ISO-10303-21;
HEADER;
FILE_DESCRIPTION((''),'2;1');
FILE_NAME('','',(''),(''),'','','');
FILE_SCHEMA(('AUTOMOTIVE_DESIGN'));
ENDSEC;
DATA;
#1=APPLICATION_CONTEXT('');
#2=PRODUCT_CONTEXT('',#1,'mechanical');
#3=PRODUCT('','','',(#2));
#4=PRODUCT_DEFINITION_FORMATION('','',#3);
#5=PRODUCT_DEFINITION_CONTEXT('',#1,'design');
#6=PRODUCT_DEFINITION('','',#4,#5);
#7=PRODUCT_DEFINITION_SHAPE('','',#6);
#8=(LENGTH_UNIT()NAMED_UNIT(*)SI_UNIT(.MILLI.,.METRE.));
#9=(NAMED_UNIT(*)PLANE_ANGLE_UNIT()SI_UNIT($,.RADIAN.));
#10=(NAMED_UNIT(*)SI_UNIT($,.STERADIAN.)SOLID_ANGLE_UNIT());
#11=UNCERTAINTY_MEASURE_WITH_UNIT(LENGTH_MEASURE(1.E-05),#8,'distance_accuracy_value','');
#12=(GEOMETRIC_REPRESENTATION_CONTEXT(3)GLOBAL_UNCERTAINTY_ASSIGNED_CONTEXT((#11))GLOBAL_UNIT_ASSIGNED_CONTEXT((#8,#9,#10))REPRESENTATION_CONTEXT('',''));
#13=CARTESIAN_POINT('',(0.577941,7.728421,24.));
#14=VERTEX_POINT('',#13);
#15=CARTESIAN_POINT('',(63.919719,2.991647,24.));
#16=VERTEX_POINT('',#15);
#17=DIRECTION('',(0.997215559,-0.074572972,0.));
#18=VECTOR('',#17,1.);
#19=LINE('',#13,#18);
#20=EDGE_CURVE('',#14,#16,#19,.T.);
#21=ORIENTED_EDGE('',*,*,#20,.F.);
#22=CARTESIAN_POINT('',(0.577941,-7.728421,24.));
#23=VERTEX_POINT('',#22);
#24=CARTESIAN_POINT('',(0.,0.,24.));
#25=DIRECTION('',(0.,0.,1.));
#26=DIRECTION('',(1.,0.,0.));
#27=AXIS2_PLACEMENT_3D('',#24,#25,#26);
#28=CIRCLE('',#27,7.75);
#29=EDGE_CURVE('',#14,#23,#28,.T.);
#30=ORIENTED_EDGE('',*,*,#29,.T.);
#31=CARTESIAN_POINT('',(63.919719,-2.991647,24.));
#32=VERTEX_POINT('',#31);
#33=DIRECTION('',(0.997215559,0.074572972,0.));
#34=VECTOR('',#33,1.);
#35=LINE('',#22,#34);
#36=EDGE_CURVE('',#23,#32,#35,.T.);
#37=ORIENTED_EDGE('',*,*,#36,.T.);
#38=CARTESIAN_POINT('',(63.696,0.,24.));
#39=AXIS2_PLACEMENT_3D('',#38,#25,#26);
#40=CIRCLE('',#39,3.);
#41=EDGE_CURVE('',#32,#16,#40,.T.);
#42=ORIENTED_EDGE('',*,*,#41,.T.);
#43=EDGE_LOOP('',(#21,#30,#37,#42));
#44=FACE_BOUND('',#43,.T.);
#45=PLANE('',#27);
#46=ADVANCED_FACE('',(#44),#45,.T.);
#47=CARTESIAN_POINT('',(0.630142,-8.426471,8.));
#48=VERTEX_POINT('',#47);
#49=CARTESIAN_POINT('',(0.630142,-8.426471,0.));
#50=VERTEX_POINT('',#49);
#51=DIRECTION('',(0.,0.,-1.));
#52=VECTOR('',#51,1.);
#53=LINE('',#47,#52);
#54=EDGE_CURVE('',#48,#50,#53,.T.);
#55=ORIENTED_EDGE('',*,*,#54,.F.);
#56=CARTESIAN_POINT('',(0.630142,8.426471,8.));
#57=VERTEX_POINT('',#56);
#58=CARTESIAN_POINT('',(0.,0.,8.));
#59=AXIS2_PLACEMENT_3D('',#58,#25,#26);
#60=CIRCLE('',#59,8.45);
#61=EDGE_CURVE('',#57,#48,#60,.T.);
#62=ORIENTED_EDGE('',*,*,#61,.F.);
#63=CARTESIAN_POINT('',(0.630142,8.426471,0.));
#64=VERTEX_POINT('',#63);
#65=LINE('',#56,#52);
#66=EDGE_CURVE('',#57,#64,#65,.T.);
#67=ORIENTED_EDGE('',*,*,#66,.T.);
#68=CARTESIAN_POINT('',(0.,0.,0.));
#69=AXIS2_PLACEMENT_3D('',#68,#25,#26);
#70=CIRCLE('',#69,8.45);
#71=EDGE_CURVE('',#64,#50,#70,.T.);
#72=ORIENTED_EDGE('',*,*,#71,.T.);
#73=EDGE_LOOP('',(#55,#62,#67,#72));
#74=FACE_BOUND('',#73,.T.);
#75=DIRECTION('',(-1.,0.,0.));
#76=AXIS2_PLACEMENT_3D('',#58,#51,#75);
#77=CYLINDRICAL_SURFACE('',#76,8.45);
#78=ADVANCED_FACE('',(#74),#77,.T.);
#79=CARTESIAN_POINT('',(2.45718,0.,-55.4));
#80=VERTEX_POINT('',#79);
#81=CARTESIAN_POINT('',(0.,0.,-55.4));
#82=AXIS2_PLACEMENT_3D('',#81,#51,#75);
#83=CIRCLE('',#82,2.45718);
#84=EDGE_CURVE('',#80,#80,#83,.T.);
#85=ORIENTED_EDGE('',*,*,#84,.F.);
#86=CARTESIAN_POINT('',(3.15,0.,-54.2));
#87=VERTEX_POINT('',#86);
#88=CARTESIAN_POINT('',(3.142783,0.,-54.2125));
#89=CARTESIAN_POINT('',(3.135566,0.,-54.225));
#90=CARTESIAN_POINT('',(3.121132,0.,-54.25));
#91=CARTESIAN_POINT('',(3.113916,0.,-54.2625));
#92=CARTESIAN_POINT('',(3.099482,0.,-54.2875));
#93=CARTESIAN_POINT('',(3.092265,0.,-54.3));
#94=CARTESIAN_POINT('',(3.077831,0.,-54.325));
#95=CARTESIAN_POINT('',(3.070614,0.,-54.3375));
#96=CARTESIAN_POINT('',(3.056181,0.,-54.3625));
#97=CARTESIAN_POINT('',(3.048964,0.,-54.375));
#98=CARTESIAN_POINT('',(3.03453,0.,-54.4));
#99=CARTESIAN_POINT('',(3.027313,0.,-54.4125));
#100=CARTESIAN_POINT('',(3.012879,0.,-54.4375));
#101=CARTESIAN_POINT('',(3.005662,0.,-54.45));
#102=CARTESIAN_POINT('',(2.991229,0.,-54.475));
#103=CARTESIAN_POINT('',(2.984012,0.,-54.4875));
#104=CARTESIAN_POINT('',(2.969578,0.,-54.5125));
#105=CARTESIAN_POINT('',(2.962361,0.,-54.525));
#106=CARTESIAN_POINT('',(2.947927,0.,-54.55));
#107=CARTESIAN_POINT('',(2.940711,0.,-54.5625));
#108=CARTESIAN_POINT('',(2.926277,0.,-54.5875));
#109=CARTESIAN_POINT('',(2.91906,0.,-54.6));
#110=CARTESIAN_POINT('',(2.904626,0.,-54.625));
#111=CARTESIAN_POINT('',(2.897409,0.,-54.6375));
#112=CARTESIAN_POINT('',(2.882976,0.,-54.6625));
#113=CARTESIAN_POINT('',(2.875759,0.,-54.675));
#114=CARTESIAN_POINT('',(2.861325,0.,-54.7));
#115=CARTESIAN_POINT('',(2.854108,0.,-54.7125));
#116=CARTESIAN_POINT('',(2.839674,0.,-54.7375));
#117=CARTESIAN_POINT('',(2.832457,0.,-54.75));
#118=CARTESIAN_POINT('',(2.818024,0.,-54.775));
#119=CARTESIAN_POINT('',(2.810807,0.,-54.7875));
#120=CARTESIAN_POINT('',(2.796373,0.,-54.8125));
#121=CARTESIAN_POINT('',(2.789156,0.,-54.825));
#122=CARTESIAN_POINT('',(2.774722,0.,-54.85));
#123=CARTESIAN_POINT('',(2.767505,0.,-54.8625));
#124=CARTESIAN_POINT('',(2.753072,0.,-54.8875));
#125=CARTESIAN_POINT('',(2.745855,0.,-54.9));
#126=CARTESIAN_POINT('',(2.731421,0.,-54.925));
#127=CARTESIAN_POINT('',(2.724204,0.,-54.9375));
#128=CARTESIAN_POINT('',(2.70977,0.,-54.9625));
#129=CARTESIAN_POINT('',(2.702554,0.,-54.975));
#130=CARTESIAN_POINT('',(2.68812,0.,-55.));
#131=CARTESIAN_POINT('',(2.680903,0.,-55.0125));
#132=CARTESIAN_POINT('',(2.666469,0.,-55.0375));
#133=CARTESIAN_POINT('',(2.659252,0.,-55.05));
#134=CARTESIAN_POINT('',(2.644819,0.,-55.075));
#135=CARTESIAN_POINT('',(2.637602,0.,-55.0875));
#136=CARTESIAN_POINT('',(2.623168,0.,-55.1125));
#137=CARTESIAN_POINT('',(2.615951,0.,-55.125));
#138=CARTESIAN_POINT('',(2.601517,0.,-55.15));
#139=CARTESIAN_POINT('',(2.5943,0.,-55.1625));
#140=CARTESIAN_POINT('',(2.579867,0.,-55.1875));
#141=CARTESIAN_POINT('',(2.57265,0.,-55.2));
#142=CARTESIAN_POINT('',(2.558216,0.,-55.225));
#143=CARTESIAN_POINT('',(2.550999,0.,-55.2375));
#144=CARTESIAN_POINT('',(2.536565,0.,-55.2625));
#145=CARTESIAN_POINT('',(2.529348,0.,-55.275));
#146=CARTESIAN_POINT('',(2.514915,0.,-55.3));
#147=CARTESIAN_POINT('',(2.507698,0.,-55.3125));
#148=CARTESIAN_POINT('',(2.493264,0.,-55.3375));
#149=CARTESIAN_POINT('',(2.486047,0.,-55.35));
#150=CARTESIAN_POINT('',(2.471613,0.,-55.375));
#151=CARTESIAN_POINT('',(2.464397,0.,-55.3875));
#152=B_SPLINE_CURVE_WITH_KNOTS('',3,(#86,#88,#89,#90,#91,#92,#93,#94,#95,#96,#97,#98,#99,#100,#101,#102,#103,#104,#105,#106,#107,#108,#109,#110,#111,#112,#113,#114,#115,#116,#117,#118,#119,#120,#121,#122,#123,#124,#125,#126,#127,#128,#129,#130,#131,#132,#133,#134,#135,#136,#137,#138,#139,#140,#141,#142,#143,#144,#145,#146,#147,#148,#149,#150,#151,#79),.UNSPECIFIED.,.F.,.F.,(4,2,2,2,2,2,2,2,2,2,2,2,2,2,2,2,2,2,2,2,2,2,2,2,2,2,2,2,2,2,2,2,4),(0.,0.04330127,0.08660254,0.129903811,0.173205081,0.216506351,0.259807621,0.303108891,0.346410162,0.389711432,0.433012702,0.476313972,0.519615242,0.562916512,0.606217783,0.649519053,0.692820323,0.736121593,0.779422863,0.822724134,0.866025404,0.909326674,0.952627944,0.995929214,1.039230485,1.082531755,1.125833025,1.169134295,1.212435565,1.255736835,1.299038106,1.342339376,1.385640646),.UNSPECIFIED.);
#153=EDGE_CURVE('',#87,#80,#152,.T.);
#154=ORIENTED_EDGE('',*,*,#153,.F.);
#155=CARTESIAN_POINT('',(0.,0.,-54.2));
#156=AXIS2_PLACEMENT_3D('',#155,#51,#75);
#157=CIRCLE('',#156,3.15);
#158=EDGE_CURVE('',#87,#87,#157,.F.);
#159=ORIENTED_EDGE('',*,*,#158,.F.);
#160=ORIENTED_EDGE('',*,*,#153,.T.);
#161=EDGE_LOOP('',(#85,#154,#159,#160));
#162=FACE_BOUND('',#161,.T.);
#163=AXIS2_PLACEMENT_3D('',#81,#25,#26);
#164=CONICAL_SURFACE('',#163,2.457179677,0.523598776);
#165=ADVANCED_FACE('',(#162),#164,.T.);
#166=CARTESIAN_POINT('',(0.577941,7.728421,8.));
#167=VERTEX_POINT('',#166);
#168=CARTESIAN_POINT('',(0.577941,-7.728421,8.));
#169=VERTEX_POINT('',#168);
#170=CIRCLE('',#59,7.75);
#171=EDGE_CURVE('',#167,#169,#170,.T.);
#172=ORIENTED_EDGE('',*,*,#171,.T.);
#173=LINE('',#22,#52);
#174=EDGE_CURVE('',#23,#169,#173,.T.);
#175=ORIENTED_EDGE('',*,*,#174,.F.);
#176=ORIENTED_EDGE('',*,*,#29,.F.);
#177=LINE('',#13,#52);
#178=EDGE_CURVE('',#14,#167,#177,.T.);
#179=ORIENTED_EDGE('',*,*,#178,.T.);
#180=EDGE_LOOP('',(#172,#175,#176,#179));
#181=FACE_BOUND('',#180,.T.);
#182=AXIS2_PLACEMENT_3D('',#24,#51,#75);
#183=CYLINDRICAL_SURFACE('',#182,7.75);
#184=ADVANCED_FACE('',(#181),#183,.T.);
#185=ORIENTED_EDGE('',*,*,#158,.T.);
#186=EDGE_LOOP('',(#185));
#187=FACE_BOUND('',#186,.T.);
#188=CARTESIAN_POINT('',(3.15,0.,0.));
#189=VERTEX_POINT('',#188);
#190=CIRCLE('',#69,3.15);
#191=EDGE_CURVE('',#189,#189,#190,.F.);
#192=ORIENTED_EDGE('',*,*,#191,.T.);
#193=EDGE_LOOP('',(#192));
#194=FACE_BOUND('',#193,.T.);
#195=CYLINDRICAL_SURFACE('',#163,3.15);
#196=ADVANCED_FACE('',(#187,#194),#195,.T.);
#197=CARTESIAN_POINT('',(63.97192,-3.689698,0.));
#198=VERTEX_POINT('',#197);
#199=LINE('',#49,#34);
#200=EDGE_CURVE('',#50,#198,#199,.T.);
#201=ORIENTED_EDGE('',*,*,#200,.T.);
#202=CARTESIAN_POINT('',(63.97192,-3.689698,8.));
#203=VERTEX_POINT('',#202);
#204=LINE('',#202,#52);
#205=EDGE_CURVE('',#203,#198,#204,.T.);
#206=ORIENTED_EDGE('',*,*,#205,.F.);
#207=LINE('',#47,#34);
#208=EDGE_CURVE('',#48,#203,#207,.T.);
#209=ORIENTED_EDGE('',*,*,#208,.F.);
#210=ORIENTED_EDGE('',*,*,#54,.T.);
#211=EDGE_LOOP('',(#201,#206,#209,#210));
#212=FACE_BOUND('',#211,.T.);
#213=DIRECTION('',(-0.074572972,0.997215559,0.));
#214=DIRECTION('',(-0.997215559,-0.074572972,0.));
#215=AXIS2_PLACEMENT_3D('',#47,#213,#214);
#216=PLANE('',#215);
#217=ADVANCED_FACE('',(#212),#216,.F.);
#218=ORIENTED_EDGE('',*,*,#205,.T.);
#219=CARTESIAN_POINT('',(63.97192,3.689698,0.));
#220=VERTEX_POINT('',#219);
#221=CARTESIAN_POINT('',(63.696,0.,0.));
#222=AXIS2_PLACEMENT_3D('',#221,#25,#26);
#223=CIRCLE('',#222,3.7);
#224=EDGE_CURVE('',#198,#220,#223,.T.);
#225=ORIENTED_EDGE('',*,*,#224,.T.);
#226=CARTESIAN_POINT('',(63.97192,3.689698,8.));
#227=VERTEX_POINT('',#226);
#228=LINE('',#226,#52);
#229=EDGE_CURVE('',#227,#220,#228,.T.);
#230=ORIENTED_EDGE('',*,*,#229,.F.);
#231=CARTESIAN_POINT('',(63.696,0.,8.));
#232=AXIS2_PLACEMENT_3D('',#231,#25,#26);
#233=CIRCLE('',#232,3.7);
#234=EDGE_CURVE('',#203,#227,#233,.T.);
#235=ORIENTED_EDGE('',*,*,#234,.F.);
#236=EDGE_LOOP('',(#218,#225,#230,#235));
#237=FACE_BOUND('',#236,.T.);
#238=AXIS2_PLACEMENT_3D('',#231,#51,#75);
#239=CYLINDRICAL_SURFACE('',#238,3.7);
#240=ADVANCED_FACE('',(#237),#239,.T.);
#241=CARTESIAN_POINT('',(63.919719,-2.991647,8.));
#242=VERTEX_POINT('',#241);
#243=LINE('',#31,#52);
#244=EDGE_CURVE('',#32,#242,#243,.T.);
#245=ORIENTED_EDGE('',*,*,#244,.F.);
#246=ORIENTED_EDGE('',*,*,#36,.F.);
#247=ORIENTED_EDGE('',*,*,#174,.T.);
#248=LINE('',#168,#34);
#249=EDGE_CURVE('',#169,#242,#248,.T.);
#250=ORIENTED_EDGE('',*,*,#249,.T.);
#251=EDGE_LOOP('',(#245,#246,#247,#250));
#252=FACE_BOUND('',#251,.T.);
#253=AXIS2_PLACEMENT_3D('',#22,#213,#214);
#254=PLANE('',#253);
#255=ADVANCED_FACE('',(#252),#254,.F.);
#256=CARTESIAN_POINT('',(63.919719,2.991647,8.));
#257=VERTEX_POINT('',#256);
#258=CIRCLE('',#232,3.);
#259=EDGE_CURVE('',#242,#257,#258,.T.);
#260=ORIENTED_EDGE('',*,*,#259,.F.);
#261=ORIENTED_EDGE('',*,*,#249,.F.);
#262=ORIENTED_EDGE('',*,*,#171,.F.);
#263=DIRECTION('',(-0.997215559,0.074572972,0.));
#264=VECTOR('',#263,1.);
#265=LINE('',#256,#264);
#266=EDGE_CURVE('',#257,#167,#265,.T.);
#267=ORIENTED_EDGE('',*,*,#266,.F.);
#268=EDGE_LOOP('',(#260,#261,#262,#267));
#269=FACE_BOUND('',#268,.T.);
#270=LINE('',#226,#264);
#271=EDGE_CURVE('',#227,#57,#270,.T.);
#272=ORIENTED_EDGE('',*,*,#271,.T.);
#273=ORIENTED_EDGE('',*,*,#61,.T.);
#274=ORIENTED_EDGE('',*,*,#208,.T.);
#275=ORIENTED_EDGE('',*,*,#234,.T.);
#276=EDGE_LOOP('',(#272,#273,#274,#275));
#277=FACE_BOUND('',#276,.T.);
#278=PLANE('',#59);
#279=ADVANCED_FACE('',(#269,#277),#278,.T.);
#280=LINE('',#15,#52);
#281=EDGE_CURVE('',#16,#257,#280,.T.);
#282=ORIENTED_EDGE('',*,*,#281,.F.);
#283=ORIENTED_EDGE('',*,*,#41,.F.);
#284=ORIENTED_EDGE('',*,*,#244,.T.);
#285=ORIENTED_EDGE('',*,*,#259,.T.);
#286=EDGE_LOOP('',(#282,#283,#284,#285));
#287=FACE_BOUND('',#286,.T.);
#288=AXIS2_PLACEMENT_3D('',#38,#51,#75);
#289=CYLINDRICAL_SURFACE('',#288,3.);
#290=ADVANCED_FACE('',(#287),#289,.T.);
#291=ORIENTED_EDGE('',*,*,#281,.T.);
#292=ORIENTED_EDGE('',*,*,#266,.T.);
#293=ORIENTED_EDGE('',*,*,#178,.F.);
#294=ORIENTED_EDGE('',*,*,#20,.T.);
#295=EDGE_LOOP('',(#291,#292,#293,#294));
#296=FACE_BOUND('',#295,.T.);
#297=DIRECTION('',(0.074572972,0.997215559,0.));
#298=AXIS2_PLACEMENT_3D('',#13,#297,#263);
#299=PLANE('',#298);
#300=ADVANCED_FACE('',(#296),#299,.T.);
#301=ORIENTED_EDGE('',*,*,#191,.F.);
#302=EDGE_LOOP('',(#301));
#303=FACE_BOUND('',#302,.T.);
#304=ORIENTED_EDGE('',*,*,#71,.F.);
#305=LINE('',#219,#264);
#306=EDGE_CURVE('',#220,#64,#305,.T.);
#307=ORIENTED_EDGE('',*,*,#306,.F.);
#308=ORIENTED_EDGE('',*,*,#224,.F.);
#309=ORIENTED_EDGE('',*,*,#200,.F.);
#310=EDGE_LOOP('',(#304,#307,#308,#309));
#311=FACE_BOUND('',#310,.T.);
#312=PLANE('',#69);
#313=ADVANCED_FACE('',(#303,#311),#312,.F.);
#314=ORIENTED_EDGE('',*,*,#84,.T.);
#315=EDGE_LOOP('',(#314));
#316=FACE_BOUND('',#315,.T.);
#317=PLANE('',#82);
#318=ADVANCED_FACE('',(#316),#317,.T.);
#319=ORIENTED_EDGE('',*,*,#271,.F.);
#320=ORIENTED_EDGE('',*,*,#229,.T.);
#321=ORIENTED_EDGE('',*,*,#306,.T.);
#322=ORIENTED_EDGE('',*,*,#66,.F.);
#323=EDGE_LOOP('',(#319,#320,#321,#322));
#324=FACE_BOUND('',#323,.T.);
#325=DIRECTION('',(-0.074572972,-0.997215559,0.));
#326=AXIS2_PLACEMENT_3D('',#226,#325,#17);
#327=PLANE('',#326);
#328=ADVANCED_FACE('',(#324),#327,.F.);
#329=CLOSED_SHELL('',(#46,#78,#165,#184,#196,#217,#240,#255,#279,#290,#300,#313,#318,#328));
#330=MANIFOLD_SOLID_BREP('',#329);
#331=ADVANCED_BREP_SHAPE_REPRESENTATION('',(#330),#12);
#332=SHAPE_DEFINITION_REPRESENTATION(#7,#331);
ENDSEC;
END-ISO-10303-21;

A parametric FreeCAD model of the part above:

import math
import FreeCAD as App
import Part
import Sketcher

V = App.Vector
Q = App.Units.Quantity


def edges_at(feature, points):
    """Names of the edges that pass closest to the given points."""
    edges = feature.Shape.Edges
    near = lambda p: min(range(len(edges)), key=lambda i: edges[i].distToShape(Part.Vertex(*p))[0])
    return sorted({f"Edge{near(p) + 1}" for p in points})

doc = App.newDocument("Part")
params = doc.addObject("Spreadsheet::Sheet", "Params")
for row, (alias, value) in enumerate([
    ("sketch1_radius", "3 mm"),
    ("sketch1_radius2", "7.75 mm"),
    ("pad1_length", "24 mm"),
    ("sketch2_radius", "3 mm"),
    ("sketch2_radius2", "3.7 mm"),
    ("sketch2_radius3", "8.45 mm"),
    ("pad2_length", "8 mm"),
    ("sketch3_diameter", "6.3 mm"),
    ("pad3_length", "55.4 mm"),
    ("chamfer_size", "1.2 mm"),
    ("chamfer_size2", "0.69282 mm"),
], start=1):
    params.set(f"A{row}", alias)
    params.set(f"B{row}", "=" + value)
    params.setAlias(f"B{row}", alias)

body = doc.addObject("PartDesign::Body", "Body")

# Sketch on XY plane
sketch1 = doc.addObject("Sketcher::SketchObject", "Sketch")
body.addObject(sketch1)
sketch1.AttachmentSupport = (doc.XY_Plane, [""])
sketch1.MapMode = "FlatFace"
sketch1.addGeometry(Part.LineSegment(V(63.9, 3, 0), V(0.6, 7.7, 0)), False)
sketch1.addGeometry(Part.ArcOfCircle(Part.Circle(V(0, 0, 0), V(0, 0, 1), 7.8), math.radians(86), math.radians(274)), False)
sketch1.addGeometry(Part.LineSegment(V(0.6, -7.7, 0), V(63.9, -3, 0)), False)
sketch1.addGeometry(Part.ArcOfCircle(Part.Circle(V(63.7, 0, 0), V(0, 0, 1), 3), math.radians(-86), math.radians(86)), False)
sketch1.addConstraint(Sketcher.Constraint("Tangent", 0, 2, 1, 1))
sketch1.addConstraint(Sketcher.Constraint("Tangent", 1, 2, 2, 1))
sketch1.addConstraint(Sketcher.Constraint("Tangent", 2, 2, 3, 1))
sketch1.addConstraint(Sketcher.Constraint("Tangent", 3, 2, 0, 1))
sketch1.addConstraint(Sketcher.Constraint("Coincident", 1, 3, -1, 1))
sketch1.addConstraint(Sketcher.Constraint("PointOnObject", 3, 3, -1))
sketch1.addConstraint(Sketcher.Constraint("Radius", 3, Q("3 mm")))
sketch1.addConstraint(Sketcher.Constraint("Radius", 1, Q("7.75 mm")))
sketch1.addConstraint(Sketcher.Constraint("DistanceX", -1, 1, 3, 3, Q("63.696 mm")))
sketch1.setExpression("Constraints[6]", "Params.sketch1_radius")
sketch1.setExpression("Constraints[7]", "Params.sketch1_radius2")
pad1 = doc.addObject("PartDesign::Pad", "Pad")
body.addObject(pad1)
pad1.Profile = sketch1
pad1.setExpression("Length", "Params.pad1_length")

# Sketch on XY plane
sketch2 = doc.addObject("Sketcher::SketchObject", "Sketch001")
body.addObject(sketch2)
sketch2.AttachmentSupport = (doc.XY_Plane, [""])
sketch2.MapMode = "FlatFace"
sketch2.addGeometry(Part.LineSegment(V(0.6, -8.4, 0), V(64, -3.7, 0)), False)
sketch2.addGeometry(Part.ArcOfCircle(Part.Circle(V(63.7, 0, 0), V(0, 0, 1), 3.7), math.radians(-86), math.radians(86)), False)
sketch2.addGeometry(Part.LineSegment(V(64, 3.7, 0), V(0.6, 8.4, 0)), False)
sketch2.addGeometry(Part.ArcOfCircle(Part.Circle(V(0, 0, 0), V(0, 0, 1), 8.4), math.radians(86), math.radians(274)), False)
sketch2.addGeometry(Part.LineSegment(V(0.6, 7.7, 0), V(63.9, 3, 0)), False)
sketch2.addGeometry(Part.ArcOfCircle(Part.Circle(V(63.7, 0, 0), V(0, 0, 1), 3), math.radians(-86), math.radians(86)), False)
sketch2.addGeometry(Part.LineSegment(V(63.9, -3, 0), V(0.6, -7.7, 0)), False)
sketch2.addGeometry(Part.ArcOfCircle(Part.Circle(V(0, 0, 0), V(0, 0, 1), 7.8), math.radians(86), math.radians(274)), False)
sketch2.addConstraint(Sketcher.Constraint("Tangent", 0, 2, 1, 1))
sketch2.addConstraint(Sketcher.Constraint("Tangent", 1, 2, 2, 1))
sketch2.addConstraint(Sketcher.Constraint("Tangent", 2, 2, 3, 1))
sketch2.addConstraint(Sketcher.Constraint("Tangent", 3, 2, 0, 1))
sketch2.addConstraint(Sketcher.Constraint("Tangent", 4, 2, 5, 2))
sketch2.addConstraint(Sketcher.Constraint("Tangent", 5, 1, 6, 1))
sketch2.addConstraint(Sketcher.Constraint("Tangent", 6, 2, 7, 2))
sketch2.addConstraint(Sketcher.Constraint("Tangent", 7, 1, 4, 1))
sketch2.addConstraint(Sketcher.Constraint("Coincident", 3, 3, -1, 1))
sketch2.addConstraint(Sketcher.Constraint("Coincident", 7, 3, -1, 1))
sketch2.addConstraint(Sketcher.Constraint("Coincident", 5, 3, 1, 3))
sketch2.addConstraint(Sketcher.Constraint("PointOnObject", 1, 3, -1))
sketch2.addConstraint(Sketcher.Constraint("Parallel", 2, 4))
sketch2.addConstraint(Sketcher.Constraint("Radius", 5, Q("3 mm")))
sketch2.addConstraint(Sketcher.Constraint("Radius", 1, Q("3.7 mm")))
sketch2.addConstraint(Sketcher.Constraint("Radius", 3, Q("8.45 mm")))
sketch2.addConstraint(Sketcher.Constraint("DistanceX", -1, 1, 1, 3, Q("63.696 mm")))
sketch2.setExpression("Constraints[13]", "Params.sketch2_radius")
sketch2.setExpression("Constraints[14]", "Params.sketch2_radius2")
sketch2.setExpression("Constraints[15]", "Params.sketch2_radius3")
pad2 = doc.addObject("PartDesign::Pad", "Pad001")
body.addObject(pad2)
pad2.Profile = sketch2
pad2.setExpression("Length", "Params.pad2_length")

# Sketch on XY plane
sketch3 = doc.addObject("Sketcher::SketchObject", "Sketch002")
body.addObject(sketch3)
sketch3.AttachmentSupport = (doc.XY_Plane, [""])
sketch3.MapMode = "FlatFace"
sketch3.addGeometry(Part.Circle(V(0, 0, 0), V(0, 0, 1), 3.1), False)
sketch3.addConstraint(Sketcher.Constraint("Coincident", 0, 3, -1, 1))
sketch3.addConstraint(Sketcher.Constraint("Diameter", 0, Q("6.3 mm")))
sketch3.setExpression("Constraints[1]", "Params.sketch3_diameter")
pad3 = doc.addObject("PartDesign::Pad", "Pad002")
body.addObject(pad3)
pad3.Profile = sketch3
pad3.setExpression("Length", "Params.pad3_length")
pad3.Reversed = True
doc.recompute()

chamfer = doc.addObject("PartDesign::Chamfer", "Chamfer")
body.addObject(chamfer)
chamfer.Base = (pad3, edges_at(pad3, [(-3.15, 0, -55.4)]))
chamfer.ChamferType = "Two distances"
chamfer.setExpression("Size", "Params.chamfer_size")
chamfer.setExpression("Size2", "Params.chamfer_size2")

doc.recompute()
